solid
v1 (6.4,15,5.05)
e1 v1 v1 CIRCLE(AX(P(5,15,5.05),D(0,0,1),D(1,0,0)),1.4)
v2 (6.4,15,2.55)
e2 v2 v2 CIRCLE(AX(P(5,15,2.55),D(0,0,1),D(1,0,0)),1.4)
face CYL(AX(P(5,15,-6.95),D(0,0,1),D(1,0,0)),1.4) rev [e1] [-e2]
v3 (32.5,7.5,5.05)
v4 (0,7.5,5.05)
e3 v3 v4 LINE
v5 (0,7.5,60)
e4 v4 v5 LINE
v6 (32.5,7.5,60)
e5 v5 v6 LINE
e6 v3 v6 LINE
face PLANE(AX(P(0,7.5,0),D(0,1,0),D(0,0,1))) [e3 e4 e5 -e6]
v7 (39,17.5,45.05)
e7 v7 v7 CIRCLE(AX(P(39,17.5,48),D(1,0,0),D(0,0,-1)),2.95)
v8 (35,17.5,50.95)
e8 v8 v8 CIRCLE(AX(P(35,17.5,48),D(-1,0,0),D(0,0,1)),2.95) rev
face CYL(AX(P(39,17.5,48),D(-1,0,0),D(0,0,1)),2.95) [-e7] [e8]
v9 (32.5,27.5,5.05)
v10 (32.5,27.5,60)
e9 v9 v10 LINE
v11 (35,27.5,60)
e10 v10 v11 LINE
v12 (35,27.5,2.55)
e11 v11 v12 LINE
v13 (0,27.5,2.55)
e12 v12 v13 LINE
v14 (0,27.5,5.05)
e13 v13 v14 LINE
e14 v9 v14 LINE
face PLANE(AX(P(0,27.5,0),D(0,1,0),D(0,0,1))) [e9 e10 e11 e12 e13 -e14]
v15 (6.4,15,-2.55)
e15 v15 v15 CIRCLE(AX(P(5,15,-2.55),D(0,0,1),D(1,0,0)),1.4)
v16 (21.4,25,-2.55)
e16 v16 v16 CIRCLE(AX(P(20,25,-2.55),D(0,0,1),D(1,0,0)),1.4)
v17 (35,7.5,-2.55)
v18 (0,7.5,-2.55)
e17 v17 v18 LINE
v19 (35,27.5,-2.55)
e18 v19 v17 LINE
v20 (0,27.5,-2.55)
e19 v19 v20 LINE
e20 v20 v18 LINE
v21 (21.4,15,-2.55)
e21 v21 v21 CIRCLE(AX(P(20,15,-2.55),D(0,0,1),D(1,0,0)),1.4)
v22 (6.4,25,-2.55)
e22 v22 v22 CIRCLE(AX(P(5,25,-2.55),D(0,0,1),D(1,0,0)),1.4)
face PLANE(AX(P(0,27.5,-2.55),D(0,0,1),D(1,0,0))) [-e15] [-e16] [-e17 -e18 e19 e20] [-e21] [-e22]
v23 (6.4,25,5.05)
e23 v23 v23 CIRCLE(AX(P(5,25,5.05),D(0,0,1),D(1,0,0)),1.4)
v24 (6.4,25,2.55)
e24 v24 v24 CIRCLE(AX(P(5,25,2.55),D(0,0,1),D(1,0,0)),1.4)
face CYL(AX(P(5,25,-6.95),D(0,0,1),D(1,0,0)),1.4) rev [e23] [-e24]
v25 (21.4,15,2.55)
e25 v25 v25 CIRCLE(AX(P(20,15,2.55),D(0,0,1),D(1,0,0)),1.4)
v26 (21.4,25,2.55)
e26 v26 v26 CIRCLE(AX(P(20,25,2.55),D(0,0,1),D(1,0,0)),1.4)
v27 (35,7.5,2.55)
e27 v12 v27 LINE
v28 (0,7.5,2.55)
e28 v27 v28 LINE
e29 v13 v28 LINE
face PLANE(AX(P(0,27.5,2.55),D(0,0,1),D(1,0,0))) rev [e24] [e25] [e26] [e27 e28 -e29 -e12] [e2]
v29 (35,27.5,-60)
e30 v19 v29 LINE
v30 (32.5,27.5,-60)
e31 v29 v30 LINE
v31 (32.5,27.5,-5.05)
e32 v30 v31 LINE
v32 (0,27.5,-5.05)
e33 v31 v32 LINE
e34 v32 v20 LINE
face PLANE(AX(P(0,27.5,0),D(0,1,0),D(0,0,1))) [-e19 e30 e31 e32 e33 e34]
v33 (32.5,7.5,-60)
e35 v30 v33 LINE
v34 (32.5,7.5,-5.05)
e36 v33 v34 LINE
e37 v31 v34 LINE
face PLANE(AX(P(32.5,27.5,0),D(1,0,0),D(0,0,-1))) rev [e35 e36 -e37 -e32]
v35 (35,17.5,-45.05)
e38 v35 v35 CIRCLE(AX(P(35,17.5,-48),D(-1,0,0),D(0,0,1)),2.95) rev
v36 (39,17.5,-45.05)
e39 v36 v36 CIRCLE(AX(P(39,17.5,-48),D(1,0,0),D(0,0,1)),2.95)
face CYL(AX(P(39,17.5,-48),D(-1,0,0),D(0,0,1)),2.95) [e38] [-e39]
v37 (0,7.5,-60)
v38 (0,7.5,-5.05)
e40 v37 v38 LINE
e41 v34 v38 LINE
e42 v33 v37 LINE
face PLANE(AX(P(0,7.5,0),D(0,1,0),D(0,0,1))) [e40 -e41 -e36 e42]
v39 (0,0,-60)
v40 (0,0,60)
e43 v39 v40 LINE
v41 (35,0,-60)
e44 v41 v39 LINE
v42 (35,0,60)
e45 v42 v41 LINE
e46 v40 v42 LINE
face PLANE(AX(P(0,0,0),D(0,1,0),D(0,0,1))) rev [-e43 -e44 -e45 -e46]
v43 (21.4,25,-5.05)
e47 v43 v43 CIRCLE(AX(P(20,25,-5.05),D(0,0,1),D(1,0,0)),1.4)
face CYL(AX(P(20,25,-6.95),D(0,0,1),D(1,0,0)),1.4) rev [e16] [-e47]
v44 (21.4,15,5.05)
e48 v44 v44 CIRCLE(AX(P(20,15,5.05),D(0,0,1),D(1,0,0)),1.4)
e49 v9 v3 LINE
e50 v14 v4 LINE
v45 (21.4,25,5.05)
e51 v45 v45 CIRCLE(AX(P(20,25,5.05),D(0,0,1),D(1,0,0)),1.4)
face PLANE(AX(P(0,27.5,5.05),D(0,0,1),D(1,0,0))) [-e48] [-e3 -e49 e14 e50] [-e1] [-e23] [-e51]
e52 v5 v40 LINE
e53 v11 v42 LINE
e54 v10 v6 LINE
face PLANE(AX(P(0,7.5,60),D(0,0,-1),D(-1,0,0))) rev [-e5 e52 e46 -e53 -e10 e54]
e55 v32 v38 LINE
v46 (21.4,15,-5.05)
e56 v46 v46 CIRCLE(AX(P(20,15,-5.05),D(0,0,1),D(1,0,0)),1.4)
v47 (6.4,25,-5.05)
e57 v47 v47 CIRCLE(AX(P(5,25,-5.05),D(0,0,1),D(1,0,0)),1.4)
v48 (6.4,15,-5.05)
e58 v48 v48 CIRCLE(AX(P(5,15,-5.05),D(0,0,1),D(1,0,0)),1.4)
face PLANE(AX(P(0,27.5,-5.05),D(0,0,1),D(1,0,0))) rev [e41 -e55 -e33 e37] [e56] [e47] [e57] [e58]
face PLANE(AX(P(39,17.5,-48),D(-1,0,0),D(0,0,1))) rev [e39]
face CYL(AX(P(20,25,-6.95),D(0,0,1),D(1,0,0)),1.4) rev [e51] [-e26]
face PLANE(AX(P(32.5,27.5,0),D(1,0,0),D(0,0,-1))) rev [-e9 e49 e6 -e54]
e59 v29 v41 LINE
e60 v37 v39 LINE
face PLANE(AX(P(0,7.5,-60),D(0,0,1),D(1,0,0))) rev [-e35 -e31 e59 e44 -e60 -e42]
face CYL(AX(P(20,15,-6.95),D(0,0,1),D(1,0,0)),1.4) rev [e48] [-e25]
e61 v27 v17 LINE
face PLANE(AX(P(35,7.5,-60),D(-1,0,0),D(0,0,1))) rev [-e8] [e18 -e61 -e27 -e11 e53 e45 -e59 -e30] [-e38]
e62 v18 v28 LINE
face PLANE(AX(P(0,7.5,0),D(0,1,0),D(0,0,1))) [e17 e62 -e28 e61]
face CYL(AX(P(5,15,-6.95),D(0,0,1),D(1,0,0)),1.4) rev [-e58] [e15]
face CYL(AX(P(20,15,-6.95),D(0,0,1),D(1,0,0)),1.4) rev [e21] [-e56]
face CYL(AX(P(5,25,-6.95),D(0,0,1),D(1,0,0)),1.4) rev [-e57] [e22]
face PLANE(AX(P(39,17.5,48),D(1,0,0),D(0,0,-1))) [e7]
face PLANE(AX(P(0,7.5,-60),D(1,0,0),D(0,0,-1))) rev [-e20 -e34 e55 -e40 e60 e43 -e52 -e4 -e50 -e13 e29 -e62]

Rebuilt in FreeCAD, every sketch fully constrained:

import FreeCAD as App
import Part
import Sketcher
Q = App.Units.Quantity

doc = App.newDocument("Part")
body = doc.addObject("PartDesign::Body", "Body")

sketch1 = body.newObject("Sketcher::SketchObject", "Sketch")
sketch1.AttachmentSupport = (doc.getObject("XZ_Plane"), [""])
sketch1.MapMode = "FlatFace"
sketch1.addGeometry([
    Part.LineSegment(App.Vector(0, -60, 0), App.Vector(0, 60, 0)),
    Part.LineSegment(App.Vector(0, 60, 0), App.Vector(35, 60, 0)),
    Part.LineSegment(App.Vector(35, 60, 0), App.Vector(35, -60, 0)),
    Part.LineSegment(App.Vector(35, -60, 0), App.Vector(0, -60, 0)),
], False)
sketch1.addConstraint([
    Sketcher.Constraint("Coincident", 0, 2, 1, 1),
    Sketcher.Constraint("Coincident", 1, 2, 2, 1),
    Sketcher.Constraint("Coincident", 2, 2, 3, 1),
    Sketcher.Constraint("Coincident", 3, 2, 0, 1),
    Sketcher.Constraint("Vertical", 0),
    Sketcher.Constraint("Horizontal", 1),
    Sketcher.Constraint("Vertical", 2),
    Sketcher.Constraint("Horizontal", 3),
    Sketcher.Constraint("Symmetric", 0, 2, 3, 2, -1, 1),
    Sketcher.Constraint("DistanceX", 1, 1, 1, 2, Q("35 mm")),
    Sketcher.Constraint("DistanceY", 0, 1, 0, 2, Q("120 mm")),
])
pad1 = body.newObject("PartDesign::Pad", "Pad")
pad1.Profile = sketch1
pad1.Length = 7.5
pad1.Reversed = True

sketch2 = body.newObject("Sketcher::SketchObject", "Sketch001")
sketch2.AttachmentSupport = (doc.getObject("XZ_Plane"), [""])
sketch2.MapMode = "FlatFace"
sketch2.AttachmentOffset = App.Placement(App.Vector(0, 0, -7.5), App.Rotation())
sketch2.addGeometry([
    Part.LineSegment(App.Vector(35, -2.55, 0), App.Vector(35, -60, 0)),
    Part.LineSegment(App.Vector(35, -60, 0), App.Vector(32.5, -60, 0)),
    Part.LineSegment(App.Vector(32.5, -60, 0), App.Vector(32.5, -5.05, 0)),
    Part.LineSegment(App.Vector(32.5, -5.05, 0), App.Vector(0, -5.05, 0)),
    Part.LineSegment(App.Vector(0, -5.05, 0), App.Vector(0, -2.55, 0)),
    Part.LineSegment(App.Vector(0, -2.55, 0), App.Vector(35, -2.55, 0)),
    Part.LineSegment(App.Vector(0, 2.55, 0), App.Vector(0, 5.05, 0)),
    Part.LineSegment(App.Vector(0, 5.05, 0), App.Vector(32.5, 5.05, 0)),
    Part.LineSegment(App.Vector(32.5, 5.05, 0), App.Vector(32.5, 60, 0)),
    Part.LineSegment(App.Vector(32.5, 60, 0), App.Vector(35, 60, 0)),
    Part.LineSegment(App.Vector(35, 60, 0), App.Vector(35, 2.55, 0)),
    Part.LineSegment(App.Vector(35, 2.55, 0), App.Vector(0, 2.55, 0)),
], False)
sketch2.addConstraint([
    Sketcher.Constraint("Coincident", 0, 2, 1, 1),
    Sketcher.Constraint("Coincident", 1, 2, 2, 1),
    Sketcher.Constraint("Coincident", 2, 2, 3, 1),
    Sketcher.Constraint("Coincident", 3, 2, 4, 1),
    Sketcher.Constraint("Coincident", 4, 2, 5, 1),
    Sketcher.Constraint("Coincident", 5, 2, 0, 1),
    Sketcher.Constraint("Coincident", 6, 2, 7, 1),
    Sketcher.Constraint("Coincident", 7, 2, 8, 1),
    Sketcher.Constraint("Coincident", 8, 2, 9, 1),
    Sketcher.Constraint("Coincident", 9, 2, 10, 1),
    Sketcher.Constraint("Coincident", 10, 2, 11, 1),
    Sketcher.Constraint("Coincident", 11, 2, 6, 1),
    Sketcher.Constraint("Vertical", 0),
    Sketcher.Constraint("Horizontal", 1),
    Sketcher.Constraint("Vertical", 2),
    Sketcher.Constraint("Horizontal", 3),
    Sketcher.Constraint("Vertical", 4),
    Sketcher.Constraint("Horizontal", 5),
    Sketcher.Constraint("Vertical", 6),
    Sketcher.Constraint("Horizontal", 7),
    Sketcher.Constraint("Vertical", 8),
    Sketcher.Constraint("Horizontal", 9),
    Sketcher.Constraint("Vertical", 10),
    Sketcher.Constraint("Horizontal", 11),
    Sketcher.Constraint("Symmetric", 3, 2, 6, 2, -1, 1),
    Sketcher.Constraint("Symmetric", 1, 2, 8, 2, -1),
    Sketcher.Constraint("Symmetric", 5, 2, 10, 2, -1),
    Sketcher.Constraint("PointOnObject", 3, 2, -2),
    Sketcher.Constraint("Equal", 9, 4),
    Sketcher.Constraint("DistanceX", 5, 1, 5, 2, Q("35 mm")),
    Sketcher.Constraint("DistanceX", 1, 2, 1, 1, Q("2.5 mm")),
    Sketcher.Constraint("DistanceY", 0, 2, -1, 1, Q("60 mm")),
    Sketcher.Constraint("DistanceY", 0, 2, 0, 1, Q("57.45 mm")),
])
pad2 = body.newObject("PartDesign::Pad", "Pad001")
pad2.Profile = sketch2
pad2.Length = 20
pad2.Reversed = True

sketch3 = body.newObject("Sketcher::SketchObject", "Sketch002")
sketch3.AttachmentSupport = (doc.getObject("XY_Plane"), [""])
sketch3.MapMode = "FlatFace"
sketch3.AttachmentOffset = App.Placement(App.Vector(0, 0, 5.05), App.Rotation())
sketch3.addGeometry([
    Part.Circle(App.Vector(5, 25, 0), App.Vector(0, 0, 1), 1.4),
    Part.Circle(App.Vector(5, 15, 0), App.Vector(0, 0, 1), 1.4),
    Part.Circle(App.Vector(20, 25, 0), App.Vector(0, 0, 1), 1.4),
    Part.Circle(App.Vector(20, 15, 0), App.Vector(0, 0, 1), 1.4),
], False)
sketch3.addConstraint([
    Sketcher.Constraint("Equal", 0, 1),
    Sketcher.Constraint("Equal", 1, 2),
    Sketcher.Constraint("Equal", 2, 3),
    Sketcher.Constraint("Horizontal", 0, 3, 2, 3),
    Sketcher.Constraint("Horizontal", 1, 3, 3, 3),
    Sketcher.Constraint("Vertical", 0, 3, 1, 3),
    Sketcher.Constraint("Vertical", 2, 3, 3, 3),
    Sketcher.Constraint("Diameter", 0, Q("2.8 mm")),
    Sketcher.Constraint("DistanceX", -1, 1, 0, 3, Q("5 mm")),
    Sketcher.Constraint("DistanceY", -1, 1, 0, 3, Q("25 mm")),
    Sketcher.Constraint("DistanceY", -1, 1, 1, 3, Q("15 mm")),
    Sketcher.Constraint("DistanceX", -1, 1, 2, 3, Q("20 mm")),
])
pocket1 = body.newObject("PartDesign::Pocket", "Pocket")
pocket1.Profile = sketch3
pocket1.Length = 12

sketch4 = body.newObject("Sketcher::SketchObject", "Sketch003")
sketch4.AttachmentSupport = (doc.getObject("YZ_Plane"), [""])
sketch4.MapMode = "FlatFace"
sketch4.AttachmentOffset = App.Placement(App.Vector(0, 0, 35), App.Rotation())
sketch4.addGeometry([
    Part.Circle(App.Vector(17.5, 48, 0), App.Vector(0, 0, 1), 2.95),
    Part.Circle(App.Vector(17.5, -48, 0), App.Vector(0, 0, 1), 2.95),
], False)
sketch4.addConstraint([
    Sketcher.Constraint("Equal", 0, 1),
    Sketcher.Constraint("Symmetric", 0, 3, 1, 3, -1),
    Sketcher.Constraint("Diameter", 0, Q("5.9 mm")),
    Sketcher.Constraint("DistanceY", -1, 1, 0, 3, Q("48 mm")),
    Sketcher.Constraint("DistanceX", -1, 1, 0, 3, Q("17.5 mm")),
])
pad3 = body.newObject("PartDesign::Pad", "Pad002")
pad3.Profile = sketch4
pad3.Length = 4

doc.recompute()
